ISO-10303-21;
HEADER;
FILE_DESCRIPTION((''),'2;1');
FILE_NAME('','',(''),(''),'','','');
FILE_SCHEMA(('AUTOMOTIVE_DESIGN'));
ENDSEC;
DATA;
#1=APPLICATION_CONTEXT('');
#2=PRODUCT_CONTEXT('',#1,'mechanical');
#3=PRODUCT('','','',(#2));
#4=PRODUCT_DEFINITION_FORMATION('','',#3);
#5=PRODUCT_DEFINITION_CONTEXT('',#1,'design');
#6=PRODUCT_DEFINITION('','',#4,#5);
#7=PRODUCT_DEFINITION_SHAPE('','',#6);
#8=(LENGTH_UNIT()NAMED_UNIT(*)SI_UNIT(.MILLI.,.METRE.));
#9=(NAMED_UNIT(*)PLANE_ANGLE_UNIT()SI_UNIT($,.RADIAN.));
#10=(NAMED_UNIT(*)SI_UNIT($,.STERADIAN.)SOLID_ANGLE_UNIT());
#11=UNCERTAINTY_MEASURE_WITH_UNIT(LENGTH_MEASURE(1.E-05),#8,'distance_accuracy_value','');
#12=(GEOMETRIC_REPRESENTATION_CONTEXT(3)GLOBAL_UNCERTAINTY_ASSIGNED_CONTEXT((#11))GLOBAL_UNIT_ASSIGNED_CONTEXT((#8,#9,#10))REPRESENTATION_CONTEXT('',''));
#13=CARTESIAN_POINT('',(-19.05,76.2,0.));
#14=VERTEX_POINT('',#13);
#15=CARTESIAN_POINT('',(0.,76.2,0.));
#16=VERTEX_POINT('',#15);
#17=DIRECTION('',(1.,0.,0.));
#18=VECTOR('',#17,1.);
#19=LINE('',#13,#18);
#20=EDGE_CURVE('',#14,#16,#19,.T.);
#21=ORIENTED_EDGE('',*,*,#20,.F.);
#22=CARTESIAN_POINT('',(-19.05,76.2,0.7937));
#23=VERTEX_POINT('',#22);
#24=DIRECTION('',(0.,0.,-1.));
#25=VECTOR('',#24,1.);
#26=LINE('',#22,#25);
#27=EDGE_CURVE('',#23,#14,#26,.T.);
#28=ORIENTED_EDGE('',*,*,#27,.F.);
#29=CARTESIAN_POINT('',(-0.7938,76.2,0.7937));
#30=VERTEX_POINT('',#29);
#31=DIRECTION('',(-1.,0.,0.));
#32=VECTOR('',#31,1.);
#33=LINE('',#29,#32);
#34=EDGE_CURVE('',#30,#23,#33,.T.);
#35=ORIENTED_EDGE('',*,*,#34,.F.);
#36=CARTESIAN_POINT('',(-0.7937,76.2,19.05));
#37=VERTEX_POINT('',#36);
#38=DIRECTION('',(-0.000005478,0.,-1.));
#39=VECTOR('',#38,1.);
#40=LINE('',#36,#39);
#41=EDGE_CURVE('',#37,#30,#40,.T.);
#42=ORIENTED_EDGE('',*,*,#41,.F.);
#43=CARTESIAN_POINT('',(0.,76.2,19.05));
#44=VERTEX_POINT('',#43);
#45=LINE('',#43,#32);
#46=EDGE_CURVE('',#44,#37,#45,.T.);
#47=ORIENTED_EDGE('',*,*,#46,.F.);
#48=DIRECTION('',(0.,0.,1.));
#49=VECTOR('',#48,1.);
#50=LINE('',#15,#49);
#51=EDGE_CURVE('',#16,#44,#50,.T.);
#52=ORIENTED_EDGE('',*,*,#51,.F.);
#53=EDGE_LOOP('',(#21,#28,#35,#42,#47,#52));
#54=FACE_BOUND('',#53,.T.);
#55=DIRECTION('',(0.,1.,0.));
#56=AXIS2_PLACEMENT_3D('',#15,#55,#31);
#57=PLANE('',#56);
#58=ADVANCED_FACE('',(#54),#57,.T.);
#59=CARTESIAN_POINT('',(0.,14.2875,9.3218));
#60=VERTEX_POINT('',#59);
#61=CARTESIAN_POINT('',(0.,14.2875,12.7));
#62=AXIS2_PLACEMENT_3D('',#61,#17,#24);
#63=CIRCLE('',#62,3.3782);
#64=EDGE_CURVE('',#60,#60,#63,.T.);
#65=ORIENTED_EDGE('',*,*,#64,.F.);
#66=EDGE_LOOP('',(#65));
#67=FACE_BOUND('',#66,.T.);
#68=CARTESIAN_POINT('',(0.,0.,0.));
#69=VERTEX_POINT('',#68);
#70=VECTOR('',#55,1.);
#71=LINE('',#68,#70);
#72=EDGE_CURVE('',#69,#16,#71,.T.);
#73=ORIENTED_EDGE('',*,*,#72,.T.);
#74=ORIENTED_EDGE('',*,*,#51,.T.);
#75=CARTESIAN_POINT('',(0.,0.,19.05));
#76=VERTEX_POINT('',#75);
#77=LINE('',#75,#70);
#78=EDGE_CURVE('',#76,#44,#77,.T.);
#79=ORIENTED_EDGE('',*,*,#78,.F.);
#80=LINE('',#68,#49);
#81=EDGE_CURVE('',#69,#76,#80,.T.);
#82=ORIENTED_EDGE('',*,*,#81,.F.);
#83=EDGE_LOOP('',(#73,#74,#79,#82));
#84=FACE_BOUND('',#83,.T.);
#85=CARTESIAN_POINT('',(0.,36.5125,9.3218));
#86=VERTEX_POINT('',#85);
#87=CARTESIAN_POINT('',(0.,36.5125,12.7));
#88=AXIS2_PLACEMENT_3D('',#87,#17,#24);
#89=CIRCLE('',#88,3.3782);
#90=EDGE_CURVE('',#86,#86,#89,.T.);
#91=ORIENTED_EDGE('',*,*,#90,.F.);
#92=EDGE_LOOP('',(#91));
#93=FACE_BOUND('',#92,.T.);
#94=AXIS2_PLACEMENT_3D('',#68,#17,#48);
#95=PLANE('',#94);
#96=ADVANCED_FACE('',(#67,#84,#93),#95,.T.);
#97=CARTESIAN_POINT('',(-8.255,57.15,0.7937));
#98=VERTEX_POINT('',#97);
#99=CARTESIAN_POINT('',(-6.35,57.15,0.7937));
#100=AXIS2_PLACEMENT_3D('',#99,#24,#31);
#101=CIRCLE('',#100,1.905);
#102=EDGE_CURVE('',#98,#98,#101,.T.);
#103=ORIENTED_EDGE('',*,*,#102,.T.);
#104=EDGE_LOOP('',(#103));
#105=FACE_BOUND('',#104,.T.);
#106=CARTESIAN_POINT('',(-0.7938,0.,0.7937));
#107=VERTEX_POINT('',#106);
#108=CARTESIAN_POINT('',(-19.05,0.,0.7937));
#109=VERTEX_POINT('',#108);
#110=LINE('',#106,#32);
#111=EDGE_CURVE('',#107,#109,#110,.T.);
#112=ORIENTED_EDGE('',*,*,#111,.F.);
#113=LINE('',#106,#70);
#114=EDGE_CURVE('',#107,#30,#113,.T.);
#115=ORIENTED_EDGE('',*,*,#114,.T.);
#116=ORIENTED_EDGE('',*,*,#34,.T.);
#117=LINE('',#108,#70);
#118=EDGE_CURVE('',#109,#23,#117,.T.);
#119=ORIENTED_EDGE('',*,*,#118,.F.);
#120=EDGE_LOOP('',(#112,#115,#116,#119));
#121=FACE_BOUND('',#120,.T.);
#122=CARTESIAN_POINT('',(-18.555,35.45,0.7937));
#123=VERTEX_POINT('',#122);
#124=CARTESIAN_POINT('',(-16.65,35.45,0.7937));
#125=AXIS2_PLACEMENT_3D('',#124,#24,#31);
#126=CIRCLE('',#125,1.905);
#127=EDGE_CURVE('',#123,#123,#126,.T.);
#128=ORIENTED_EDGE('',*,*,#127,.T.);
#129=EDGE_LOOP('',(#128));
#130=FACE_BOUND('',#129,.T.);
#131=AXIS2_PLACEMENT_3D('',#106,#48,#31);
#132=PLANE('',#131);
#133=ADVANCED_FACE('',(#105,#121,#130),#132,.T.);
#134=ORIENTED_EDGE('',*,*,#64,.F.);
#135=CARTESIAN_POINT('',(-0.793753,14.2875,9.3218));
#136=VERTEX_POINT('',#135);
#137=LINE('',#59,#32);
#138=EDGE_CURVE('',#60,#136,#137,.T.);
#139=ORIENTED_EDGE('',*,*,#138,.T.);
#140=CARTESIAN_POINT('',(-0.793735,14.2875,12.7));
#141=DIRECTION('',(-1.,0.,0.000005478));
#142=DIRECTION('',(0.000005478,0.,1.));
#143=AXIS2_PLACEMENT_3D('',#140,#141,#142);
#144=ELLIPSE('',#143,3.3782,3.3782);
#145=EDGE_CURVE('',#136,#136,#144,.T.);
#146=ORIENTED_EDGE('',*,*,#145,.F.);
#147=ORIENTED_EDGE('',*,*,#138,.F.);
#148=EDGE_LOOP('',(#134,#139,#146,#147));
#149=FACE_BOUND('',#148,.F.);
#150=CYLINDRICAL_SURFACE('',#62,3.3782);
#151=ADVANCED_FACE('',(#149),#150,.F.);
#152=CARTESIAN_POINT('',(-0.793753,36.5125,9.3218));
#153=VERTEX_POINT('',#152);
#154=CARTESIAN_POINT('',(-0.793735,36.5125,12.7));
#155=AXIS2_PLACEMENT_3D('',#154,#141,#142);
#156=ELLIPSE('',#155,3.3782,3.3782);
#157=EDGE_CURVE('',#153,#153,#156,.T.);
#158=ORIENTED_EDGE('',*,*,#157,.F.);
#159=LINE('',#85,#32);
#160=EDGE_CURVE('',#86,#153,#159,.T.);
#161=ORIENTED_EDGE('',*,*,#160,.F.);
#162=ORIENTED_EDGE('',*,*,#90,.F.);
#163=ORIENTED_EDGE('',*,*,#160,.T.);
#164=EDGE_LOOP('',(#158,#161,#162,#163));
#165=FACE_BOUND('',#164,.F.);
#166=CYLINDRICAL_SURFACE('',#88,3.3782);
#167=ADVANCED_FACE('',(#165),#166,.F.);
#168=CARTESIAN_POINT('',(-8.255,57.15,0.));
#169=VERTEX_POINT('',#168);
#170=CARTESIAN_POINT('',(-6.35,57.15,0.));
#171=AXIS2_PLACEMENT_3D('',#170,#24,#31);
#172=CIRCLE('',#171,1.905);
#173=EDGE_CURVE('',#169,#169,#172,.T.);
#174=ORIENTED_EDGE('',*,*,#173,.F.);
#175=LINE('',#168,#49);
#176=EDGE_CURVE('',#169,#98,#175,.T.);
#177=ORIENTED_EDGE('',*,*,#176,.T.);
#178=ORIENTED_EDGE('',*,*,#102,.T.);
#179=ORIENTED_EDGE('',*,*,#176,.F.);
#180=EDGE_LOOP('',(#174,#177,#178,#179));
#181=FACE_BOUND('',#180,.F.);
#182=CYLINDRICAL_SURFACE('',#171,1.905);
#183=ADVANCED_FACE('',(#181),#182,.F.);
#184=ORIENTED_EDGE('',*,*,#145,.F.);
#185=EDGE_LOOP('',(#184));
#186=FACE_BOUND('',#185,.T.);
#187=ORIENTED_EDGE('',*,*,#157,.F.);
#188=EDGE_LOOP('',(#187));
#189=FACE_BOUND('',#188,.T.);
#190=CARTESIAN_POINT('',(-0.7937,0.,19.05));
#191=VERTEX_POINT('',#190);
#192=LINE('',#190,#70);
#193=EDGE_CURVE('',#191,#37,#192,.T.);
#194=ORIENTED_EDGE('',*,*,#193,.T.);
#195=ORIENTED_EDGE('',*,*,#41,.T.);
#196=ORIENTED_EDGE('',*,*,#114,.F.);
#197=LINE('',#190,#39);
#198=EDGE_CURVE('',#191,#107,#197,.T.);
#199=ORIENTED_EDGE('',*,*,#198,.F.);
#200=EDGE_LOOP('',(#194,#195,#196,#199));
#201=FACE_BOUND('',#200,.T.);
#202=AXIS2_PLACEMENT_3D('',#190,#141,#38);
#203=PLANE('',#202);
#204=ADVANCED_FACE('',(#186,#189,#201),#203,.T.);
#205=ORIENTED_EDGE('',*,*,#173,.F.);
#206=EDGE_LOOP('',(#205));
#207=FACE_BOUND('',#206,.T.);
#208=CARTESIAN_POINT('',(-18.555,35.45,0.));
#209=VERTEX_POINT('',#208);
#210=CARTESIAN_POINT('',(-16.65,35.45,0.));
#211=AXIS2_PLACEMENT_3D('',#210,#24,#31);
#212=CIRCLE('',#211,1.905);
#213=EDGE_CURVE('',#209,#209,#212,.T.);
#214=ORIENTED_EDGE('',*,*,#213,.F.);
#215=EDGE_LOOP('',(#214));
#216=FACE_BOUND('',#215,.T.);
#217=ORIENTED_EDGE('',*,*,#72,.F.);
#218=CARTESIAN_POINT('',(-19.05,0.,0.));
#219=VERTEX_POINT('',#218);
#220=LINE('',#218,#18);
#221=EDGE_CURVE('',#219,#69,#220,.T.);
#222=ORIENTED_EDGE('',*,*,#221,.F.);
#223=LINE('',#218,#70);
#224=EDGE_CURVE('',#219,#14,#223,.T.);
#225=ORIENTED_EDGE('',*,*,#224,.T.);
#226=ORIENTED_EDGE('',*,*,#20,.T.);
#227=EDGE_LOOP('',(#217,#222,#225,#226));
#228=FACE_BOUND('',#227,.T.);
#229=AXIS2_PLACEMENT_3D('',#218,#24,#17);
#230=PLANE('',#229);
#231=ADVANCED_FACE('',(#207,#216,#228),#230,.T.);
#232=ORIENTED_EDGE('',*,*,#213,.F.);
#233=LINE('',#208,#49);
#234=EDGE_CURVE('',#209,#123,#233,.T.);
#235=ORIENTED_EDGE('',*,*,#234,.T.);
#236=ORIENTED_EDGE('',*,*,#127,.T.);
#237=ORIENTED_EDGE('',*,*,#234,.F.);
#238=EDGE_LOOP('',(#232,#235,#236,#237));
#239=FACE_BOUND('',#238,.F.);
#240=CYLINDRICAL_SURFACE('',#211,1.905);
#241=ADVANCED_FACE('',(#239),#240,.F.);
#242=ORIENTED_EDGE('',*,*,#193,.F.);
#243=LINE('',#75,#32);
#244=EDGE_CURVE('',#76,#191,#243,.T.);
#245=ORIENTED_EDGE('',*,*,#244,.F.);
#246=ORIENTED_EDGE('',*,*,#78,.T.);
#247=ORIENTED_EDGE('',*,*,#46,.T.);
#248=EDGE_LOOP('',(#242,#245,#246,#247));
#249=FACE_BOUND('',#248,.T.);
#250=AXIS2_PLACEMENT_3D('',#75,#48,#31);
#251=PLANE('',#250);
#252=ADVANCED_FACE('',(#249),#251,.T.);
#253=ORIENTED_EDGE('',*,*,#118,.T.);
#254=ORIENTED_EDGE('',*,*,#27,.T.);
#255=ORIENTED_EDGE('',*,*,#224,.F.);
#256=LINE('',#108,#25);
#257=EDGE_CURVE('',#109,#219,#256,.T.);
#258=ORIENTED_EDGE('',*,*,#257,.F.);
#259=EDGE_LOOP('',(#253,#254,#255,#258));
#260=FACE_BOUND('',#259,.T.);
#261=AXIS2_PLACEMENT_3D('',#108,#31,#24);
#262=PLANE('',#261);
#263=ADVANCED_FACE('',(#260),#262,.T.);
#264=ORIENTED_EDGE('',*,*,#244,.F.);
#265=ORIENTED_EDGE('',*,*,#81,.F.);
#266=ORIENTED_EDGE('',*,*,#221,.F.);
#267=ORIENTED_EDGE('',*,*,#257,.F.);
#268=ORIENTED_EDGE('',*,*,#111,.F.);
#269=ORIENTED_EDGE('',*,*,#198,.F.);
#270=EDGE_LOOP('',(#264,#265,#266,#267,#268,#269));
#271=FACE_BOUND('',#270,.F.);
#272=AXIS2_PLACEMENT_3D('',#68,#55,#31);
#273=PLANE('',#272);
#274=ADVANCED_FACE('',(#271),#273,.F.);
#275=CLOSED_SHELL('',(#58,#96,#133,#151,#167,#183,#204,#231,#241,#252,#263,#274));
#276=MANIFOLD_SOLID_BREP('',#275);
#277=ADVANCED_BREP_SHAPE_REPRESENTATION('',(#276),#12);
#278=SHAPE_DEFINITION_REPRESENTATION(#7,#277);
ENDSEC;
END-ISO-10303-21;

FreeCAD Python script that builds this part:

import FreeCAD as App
import Part
import Sketcher
Q = App.Units.Quantity

doc = App.newDocument("Part")
body = doc.addObject("PartDesign::Body", "Body")

sketch1 = body.newObject("Sketcher::SketchObject", "Sketch")
sketch1.AttachmentSupport = (doc.getObject("XZ_Plane"), [""])
sketch1.MapMode = "FlatFace"
sketch1.addGeometry([
    Part.LineSegment(App.Vector(0, 19.1, 0), App.Vector(0, 0, 0)),
    Part.LineSegment(App.Vector(0, 0, 0), App.Vector(-19.1, 0, 0)),
    Part.LineSegment(App.Vector(-19.1, 0, 0), App.Vector(-19.1, 0.8, 0)),
    Part.LineSegment(App.Vector(-19.1, 0.8, 0), App.Vector(-0.8, 0.8, 0)),
    Part.LineSegment(App.Vector(-0.8, 0.8, 0), App.Vector(-0.8, 19.1, 0)),
    Part.LineSegment(App.Vector(-0.8, 19.1, 0), App.Vector(0, 19.1, 0)),
], False)
sketch1.addConstraint([
    Sketcher.Constraint("Coincident", 0, 2, 1, 1),
    Sketcher.Constraint("Coincident", 1, 2, 2, 1),
    Sketcher.Constraint("Coincident", 2, 2, 3, 1),
    Sketcher.Constraint("Coincident", 3, 2, 4, 1),
    Sketcher.Constraint("Coincident", 4, 2, 5, 1),
    Sketcher.Constraint("Coincident", 5, 2, 0, 1),
    Sketcher.Constraint("Vertical", 0),
    Sketcher.Constraint("Horizontal", 1),
    Sketcher.Constraint("Vertical", 2),
    Sketcher.Constraint("Horizontal", 3),
    Sketcher.Constraint("Vertical", 4),
    Sketcher.Constraint("Horizontal", 5),
    Sketcher.Constraint("Coincident", 0, 2, -1, 1),
    Sketcher.Constraint("Equal", 1, 0),
    Sketcher.Constraint("Equal", 5, 2),
    Sketcher.Constraint("DistanceX", 1, 2, 1, 1, Q("0.75 in")),
    Sketcher.Constraint("DistanceX", 5, 1, 5, 2, Q("0.031248 in")),
])
pad1 = body.newObject("PartDesign::Pad", "Pad")
pad1.Profile = sketch1
pad1.Length = Q("3 in")
pad1.Reversed = True

sketch2 = body.newObject("Sketcher::SketchObject", "Sketch001")
sketch2.AttachmentSupport = (doc.getObject("YZ_Plane"), [""])
sketch2.MapMode = "FlatFace"
sketch2.addGeometry([
    Part.Circle(App.Vector(36.5, 12.7, 0), App.Vector(0, 0, 1), 3.4),
    Part.Circle(App.Vector(14.3, 12.7, 0), App.Vector(0, 0, 1), 3.4),
], False)
sketch2.addConstraint([
    Sketcher.Constraint("Equal", 0, 1),
    Sketcher.Constraint("Horizontal", 0, 3, 1, 3),
    Sketcher.Constraint("Diameter", 0, Q("0.266 in")),
    Sketcher.Constraint("DistanceY", -1, 1, 0, 3, Q("0.5 in")),
    Sketcher.Constraint("DistanceX", -1, 1, 1, 3, Q("0.5625 in")),
    Sketcher.Constraint("DistanceX", 1, 3, 0, 3, Q("0.875 in")),
])
pocket1 = body.newObject("PartDesign::Pocket", "Pocket")
pocket1.Profile = sketch2
pocket1.Type = "ThroughAll"

sketch3 = body.newObject("Sketcher::SketchObject", "Sketch002")
sketch3.AttachmentSupport = (doc.getObject("XY_Plane"), [""])
sketch3.MapMode = "FlatFace"
sketch3.addGeometry([
    Part.Circle(App.Vector(-16.6, 35.5, 0), App.Vector(0, 0, 1), 1.9),
    Part.Circle(App.Vector(-6.3, 57.1, 0), App.Vector(0, 0, 1), 1.9),
], False)
sketch3.addConstraint([
    Sketcher.Constraint("Equal", 0, 1),
    Sketcher.Constraint("Diameter", 0, Q("0.15 in")),
    Sketcher.Constraint("DistanceX", 1, 3, -1, 1, Q("0.25 in")),
    Sketcher.Constraint("DistanceX", 0, 3, 1, 3, Q("0.4055 in")),
    Sketcher.Constraint("DistanceY", -1, 1, 1, 3, Q("2.25 in")),
    Sketcher.Constraint("DistanceY", 0, 3, 1, 3, Q("21.7 mm")),
])
pocket2 = body.newObject("PartDesign::Pocket", "Pocket001")
pocket2.Profile = sketch3
pocket2.Type = "ThroughAll"
pocket2.Reversed = True

doc.recompute()
